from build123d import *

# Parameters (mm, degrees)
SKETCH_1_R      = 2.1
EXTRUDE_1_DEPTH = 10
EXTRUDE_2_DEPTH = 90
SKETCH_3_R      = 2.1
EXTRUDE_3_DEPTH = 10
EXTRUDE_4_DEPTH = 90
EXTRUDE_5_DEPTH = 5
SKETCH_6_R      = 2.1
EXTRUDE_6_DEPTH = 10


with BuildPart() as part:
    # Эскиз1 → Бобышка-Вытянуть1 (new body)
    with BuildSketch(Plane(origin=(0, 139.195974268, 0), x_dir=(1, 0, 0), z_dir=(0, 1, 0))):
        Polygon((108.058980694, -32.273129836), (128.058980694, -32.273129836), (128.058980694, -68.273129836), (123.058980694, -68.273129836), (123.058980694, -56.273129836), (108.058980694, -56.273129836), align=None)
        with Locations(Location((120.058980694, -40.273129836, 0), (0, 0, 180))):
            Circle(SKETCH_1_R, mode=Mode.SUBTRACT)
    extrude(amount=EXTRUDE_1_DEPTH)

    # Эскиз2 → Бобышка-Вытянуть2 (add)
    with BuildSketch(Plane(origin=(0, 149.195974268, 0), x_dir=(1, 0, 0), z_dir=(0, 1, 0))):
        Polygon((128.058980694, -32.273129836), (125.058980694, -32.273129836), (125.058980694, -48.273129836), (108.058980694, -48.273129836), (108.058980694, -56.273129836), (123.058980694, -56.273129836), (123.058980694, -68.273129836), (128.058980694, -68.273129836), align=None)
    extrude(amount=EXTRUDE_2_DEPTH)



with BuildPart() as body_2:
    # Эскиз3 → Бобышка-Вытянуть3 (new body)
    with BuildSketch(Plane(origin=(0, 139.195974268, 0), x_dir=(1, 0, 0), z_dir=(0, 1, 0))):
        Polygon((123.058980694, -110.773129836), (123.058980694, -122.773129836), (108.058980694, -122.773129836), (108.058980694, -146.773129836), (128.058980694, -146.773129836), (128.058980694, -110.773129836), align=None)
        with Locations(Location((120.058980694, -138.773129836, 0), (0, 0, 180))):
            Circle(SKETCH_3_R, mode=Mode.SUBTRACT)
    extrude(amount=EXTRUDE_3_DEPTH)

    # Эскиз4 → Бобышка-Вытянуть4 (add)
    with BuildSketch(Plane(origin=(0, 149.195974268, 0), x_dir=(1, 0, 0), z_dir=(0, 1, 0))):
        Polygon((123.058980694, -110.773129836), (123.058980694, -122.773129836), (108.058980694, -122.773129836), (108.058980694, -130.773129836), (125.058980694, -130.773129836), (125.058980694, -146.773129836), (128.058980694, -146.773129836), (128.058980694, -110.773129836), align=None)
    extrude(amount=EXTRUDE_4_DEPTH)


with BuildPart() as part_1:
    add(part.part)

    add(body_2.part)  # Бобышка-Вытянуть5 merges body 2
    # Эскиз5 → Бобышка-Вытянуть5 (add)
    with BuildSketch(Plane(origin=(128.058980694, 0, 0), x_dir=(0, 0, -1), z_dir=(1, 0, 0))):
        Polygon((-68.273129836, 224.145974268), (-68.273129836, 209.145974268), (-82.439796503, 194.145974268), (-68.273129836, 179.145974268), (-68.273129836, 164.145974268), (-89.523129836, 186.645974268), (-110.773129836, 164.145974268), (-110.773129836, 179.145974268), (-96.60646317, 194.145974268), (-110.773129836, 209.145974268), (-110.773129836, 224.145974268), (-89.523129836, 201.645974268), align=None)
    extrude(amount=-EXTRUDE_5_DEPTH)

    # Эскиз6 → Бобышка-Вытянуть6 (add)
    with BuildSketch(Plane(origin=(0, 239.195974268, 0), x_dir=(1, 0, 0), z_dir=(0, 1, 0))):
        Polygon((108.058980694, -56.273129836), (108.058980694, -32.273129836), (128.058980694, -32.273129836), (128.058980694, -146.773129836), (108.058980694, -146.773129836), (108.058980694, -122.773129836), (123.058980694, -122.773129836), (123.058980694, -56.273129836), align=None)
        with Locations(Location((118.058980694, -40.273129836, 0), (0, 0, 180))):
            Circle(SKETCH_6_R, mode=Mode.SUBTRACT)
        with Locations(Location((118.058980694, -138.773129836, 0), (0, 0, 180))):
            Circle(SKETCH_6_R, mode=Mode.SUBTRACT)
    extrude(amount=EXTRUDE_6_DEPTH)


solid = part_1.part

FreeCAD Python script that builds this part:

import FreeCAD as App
import Part
import Sketcher
from FreeCAD import Vector


def add_polygon(sketch, points):
    """Adds a closed chain of lines whose ends are joined by coincident constraints."""
    first, n = sketch.GeometryCount, len(points)
    for a, b in zip(points, points[1:] + points[:1]):
        sketch.addGeometry(Part.LineSegment(App.Vector(*a, 0), App.Vector(*b, 0)), False)
    for i in range(n):
        sketch.addConstraint(Sketcher.Constraint("Coincident", first + i, 2, first + (i + 1) % n, 1))

doc = App.newDocument("Part")
body = doc.addObject("PartDesign::Body", "Body")

sketch1 = body.newObject("Sketcher::SketchObject", "Sketch")
sketch1.AttachmentSupport = (doc.getObject("XZ_Plane"), [""])
sketch1.MapMode = "FlatFace"
sketch1.AttachmentOffset = App.Placement(Vector(0, 0, -139.195974), App.Rotation())
add_polygon(sketch1, [(128.058981, 32.27313), (108.058981, 32.27313), (108.058981, 56.27313), (123.058981, 56.27313), (123.058981, 68.27313), (128.058981, 68.27313)])
sketch1.addGeometry(Part.Circle(Vector(120.058981, 40.27313, 0), Vector(0, 0, 1), 2.1), False)
sketch1.addConstraint(Sketcher.Constraint("Horizontal", 0))
sketch1.addConstraint(Sketcher.Constraint("Vertical", 1))
sketch1.addConstraint(Sketcher.Constraint("Horizontal", 2))
sketch1.addConstraint(Sketcher.Constraint("Vertical", 3))
sketch1.addConstraint(Sketcher.Constraint("Horizontal", 4))
sketch1.addConstraint(Sketcher.Constraint("Vertical", 5))
sketch1.addConstraint(Sketcher.Constraint("Diameter", 6, 4.2))
sketch1.addConstraint(Sketcher.Constraint("DistanceX", 0, 2, 0, 1, 20.0))
sketch1.addConstraint(Sketcher.Constraint("DistanceX", 2, 1, 2, 2, 15.0))
sketch1.addConstraint(Sketcher.Constraint("DistanceY", 1, 1, 1, 2, 24.0))
sketch1.addConstraint(Sketcher.Constraint("DistanceY", 3, 1, 3, 2, 12.0))
sketch1.addConstraint(Sketcher.Constraint("DistanceX", 0, 2, 6, 3, 12.0))
sketch1.addConstraint(Sketcher.Constraint("DistanceY", 0, 2, 6, 3, 8.0))
sketch1.addConstraint(Sketcher.Constraint("DistanceX", -1, 1, 6, 3, 120.058981))
sketch1.addConstraint(Sketcher.Constraint("DistanceY", -1, 1, 6, 3, 40.27313))
pad1 = body.newObject("PartDesign::Pad", "Pad")
pad1.Profile = sketch1
pad1.Length = 10
pad1.Reversed = True

sketch2 = body.newObject("Sketcher::SketchObject", "Sketch001")
sketch2.AttachmentSupport = (doc.getObject("XZ_Plane"), [""])
sketch2.MapMode = "FlatFace"
sketch2.AttachmentOffset = App.Placement(Vector(0, 0, -149.195974), App.Rotation())
add_polygon(sketch2, [(128.058981, 32.27313), (125.058981, 32.27313), (125.058981, 48.27313), (108.058981, 48.27313), (108.058981, 56.27313), (123.058981, 56.27313), (123.058981, 68.27313), (128.058981, 68.27313)])
sketch2.addConstraint(Sketcher.Constraint("Horizontal", 0))
sketch2.addConstraint(Sketcher.Constraint("Vertical", 1))
sketch2.addConstraint(Sketcher.Constraint("Horizontal", 2))
sketch2.addConstraint(Sketcher.Constraint("Vertical", 3))
sketch2.addConstraint(Sketcher.Constraint("Horizontal", 4))
sketch2.addConstraint(Sketcher.Constraint("Vertical", 5))
sketch2.addConstraint(Sketcher.Constraint("Horizontal", 6))
sketch2.addConstraint(Sketcher.Constraint("Vertical", 7))
sketch2.addConstraint(Sketcher.Constraint("DistanceX", 0, 2, 0, 1, 3.0))
sketch2.addConstraint(Sketcher.Constraint("DistanceX", 2, 2, 2, 1, 17.0))
sketch2.addConstraint(Sketcher.Constraint("DistanceX", 4, 1, 4, 2, 15.0))
sketch2.addConstraint(Sketcher.Constraint("DistanceY", 1, 1, 1, 2, 16.0))
sketch2.addConstraint(Sketcher.Constraint("DistanceY", 3, 1, 3, 2, 8.0))
sketch2.addConstraint(Sketcher.Constraint("DistanceY", 5, 1, 5, 2, 12.0))
sketch2.addConstraint(Sketcher.Constraint("DistanceX", -1, 1, 0, 2, 125.058981))
sketch2.addConstraint(Sketcher.Constraint("DistanceY", -1, 1, 0, 2, 32.27313))
pad2 = body.newObject("PartDesign::Pad", "Pad001")
pad2.Profile = sketch2
pad2.Length = 90
pad2.Reversed = True
body2 = doc.addObject("PartDesign::Body", "Body001")

sketch3 = body2.newObject("Sketcher::SketchObject", "Sketch002")
sketch3.AttachmentSupport = (doc.getObject("XZ_Plane001"), [""])
sketch3.MapMode = "FlatFace"
sketch3.AttachmentOffset = App.Placement(Vector(0, 0, -139.195974), App.Rotation())
add_polygon(sketch3, [(123.058981, 110.77313), (123.058981, 122.77313), (108.058981, 122.77313), (108.058981, 146.77313), (128.058981, 146.77313), (128.058981, 110.77313)])
sketch3.addGeometry(Part.Circle(Vector(120.058981, 138.77313, 0), Vector(0, 0, 1), 2.1), False)
sketch3.addConstraint(Sketcher.Constraint("Vertical", 0))
sketch3.addConstraint(Sketcher.Constraint("Horizontal", 1))
sketch3.addConstraint(Sketcher.Constraint("Vertical", 2))
sketch3.addConstraint(Sketcher.Constraint("Horizontal", 3))
sketch3.addConstraint(Sketcher.Constraint("Vertical", 4))
sketch3.addConstraint(Sketcher.Constraint("Horizontal", 5))
sketch3.addConstraint(Sketcher.Constraint("Diameter", 6, 4.2))
sketch3.addConstraint(Sketcher.Constraint("DistanceX", 1, 2, 1, 1, 15.0))
sketch3.addConstraint(Sketcher.Constraint("DistanceX", 3, 1, 3, 2, 20.0))
sketch3.addConstraint(Sketcher.Constraint("DistanceY", 0, 1, 0, 2, 12.0))
sketch3.addConstraint(Sketcher.Constraint("DistanceY", 2, 1, 2, 2, 24.0))
sketch3.addConstraint(Sketcher.Constraint("DistanceX", 6, 3, 0, 2, 3.0))
sketch3.addConstraint(Sketcher.Constraint("DistanceY", 0, 2, 6, 3, 16.0))
sketch3.addConstraint(Sketcher.Constraint("DistanceX", -1, 1, 6, 3, 120.058981))
sketch3.addConstraint(Sketcher.Constraint("DistanceY", -1, 1, 6, 3, 138.77313))
pad3 = body2.newObject("PartDesign::Pad", "Pad002")
pad3.Profile = sketch3
pad3.Length = 10
pad3.Reversed = True

sketch4 = body2.newObject("Sketcher::SketchObject", "Sketch003")
sketch4.AttachmentSupport = (doc.getObject("XZ_Plane001"), [""])
sketch4.MapMode = "FlatFace"
sketch4.AttachmentOffset = App.Placement(Vector(0, 0, -149.195974), App.Rotation())
add_polygon(sketch4, [(123.058981, 110.77313), (123.058981, 122.77313), (108.058981, 122.77313), (108.058981, 130.77313), (125.058981, 130.77313), (125.058981, 146.77313), (128.058981, 146.77313), (128.058981, 110.77313)])
sketch4.addConstraint(Sketcher.Constraint("Vertical", 0))
sketch4.addConstraint(Sketcher.Constraint("Horizontal", 1))
sketch4.addConstraint(Sketcher.Constraint("Vertical", 2))
sketch4.addConstraint(Sketcher.Constraint("Horizontal", 3))
sketch4.addConstraint(Sketcher.Constraint("Vertical", 4))
sketch4.addConstraint(Sketcher.Constraint("Horizontal", 5))
sketch4.addConstraint(Sketcher.Constraint("Vertical", 6))
sketch4.addConstraint(Sketcher.Constraint("Horizontal", 7))
sketch4.addConstraint(Sketcher.Constraint("DistanceX", 1, 2, 1, 1, 15.0))
sketch4.addConstraint(Sketcher.Constraint("DistanceX", 3, 1, 3, 2, 17.0))
sketch4.addConstraint(Sketcher.Constraint("DistanceX", 5, 1, 5, 2, 3.0))
sketch4.addConstraint(Sketcher.Constraint("DistanceY", 0, 1, 0, 2, 12.0))
sketch4.addConstraint(Sketcher.Constraint("DistanceY", 2, 1, 2, 2, 8.0))
sketch4.addConstraint(Sketcher.Constraint("DistanceY", 4, 1, 4, 2, 16.0))
sketch4.addConstraint(Sketcher.Constraint("DistanceX", -1, 1, 0, 2, 123.058981))
sketch4.addConstraint(Sketcher.Constraint("DistanceY", -1, 1, 0, 2, 122.77313))
pad4 = body2.newObject("PartDesign::Pad", "Pad003")
pad4.Profile = sketch4
pad4.Length = 90
pad4.Reversed = True
body.AllowCompound = True
doc.recompute()

boolean = body.newObject("PartDesign::Boolean", "Boolean")
boolean.Type = "Fuse"
boolean.addObjects([body2])

sketch5 = body.newObject("Sketcher::SketchObject", "Sketch004")
sketch5.AttachmentSupport = (doc.getObject("YZ_Plane"), [""])
sketch5.MapMode = "FlatFace"
sketch5.AttachmentOffset = App.Placement(Vector(0, 0, 128.058981), App.Rotation())
add_polygon(sketch5, [(209.145974, 68.27313), (224.145974, 68.27313), (201.645974, 89.52313), (224.145974, 110.77313), (209.145974, 110.77313), (194.145974, 96.606463), (179.145974, 110.77313), (164.145974, 110.77313), (186.645974, 89.52313), (164.145974, 68.27313), (179.145974, 68.27313), (194.145974, 82.439797)])
sketch5.addConstraint(Sketcher.Constraint("Horizontal", 0))
sketch5.addConstraint(Sketcher.Constraint("Horizontal", 3))
sketch5.addConstraint(Sketcher.Constraint("Horizontal", 6))
sketch5.addConstraint(Sketcher.Constraint("Horizontal", 9))
sketch5.addConstraint(Sketcher.Constraint("Parallel", 2, 4))
sketch5.addConstraint(Sketcher.Constraint("Parallel", 1, 5))
sketch5.addConstraint(Sketcher.Constraint("Parallel", 5, 7))
sketch5.addConstraint(Sketcher.Constraint("Parallel", 4, 8))
sketch5.addConstraint(Sketcher.Constraint("Parallel", 8, 10))
sketch5.addConstraint(Sketcher.Constraint("Parallel", 7, 11))
sketch5.addConstraint(Sketcher.Constraint("Horizontal", 3, 2, 5, 2))
sketch5.addConstraint(Sketcher.Constraint("Horizontal", 1, 2, 7, 2))
sketch5.addConstraint(Sketcher.Constraint("Horizontal", 0, 2, 8, 2))
sketch5.addConstraint(Sketcher.Constraint("Vertical", 0, 2, 2, 2))
sketch5.addConstraint(Sketcher.Constraint("Vertical", 6, 2, 8, 2))
sketch5.addConstraint(Sketcher.Constraint("Vertical", 5, 2, 9, 2))
sketch5.addConstraint(Sketcher.Constraint("Vertical", 4, 2, 10, 2))
sketch5.addConstraint(Sketcher.Constraint("Equal", 3, 6))
sketch5.addConstraint(Sketcher.Constraint("DistanceX", 0, 1, 0, 2, 15.0))
sketch5.addConstraint(Sketcher.Constraint("DistanceX", 4, 2, 3, 2, 15.0))
sketch5.addConstraint(Sketcher.Constraint("DistanceX", 7, 2, 1, 2, 15.0))
sketch5.addConstraint(Sketcher.Constraint("DistanceY", 0, 2, 2, 2, 42.5))
sketch5.addConstraint(Sketcher.Constraint("DistanceY", -1, 1, 0, 2, 68.27313))
sketch5.addConstraint(Sketcher.Constraint("DistanceX", -1, 1, 0, 2, 224.145974))
pad5 = body.newObject("PartDesign::Pad", "Pad004")
pad5.Profile = sketch5
pad5.Length = 5
pad5.Reversed = True

sketch6 = body.newObject("Sketcher::SketchObject", "Sketch005")
sketch6.AttachmentSupport = (doc.getObject("XZ_Plane"), [""])
sketch6.MapMode = "FlatFace"
sketch6.AttachmentOffset = App.Placement(Vector(0, 0, -239.195974), App.Rotation())
add_polygon(sketch6, [(108.058981, 32.27313), (108.058981, 56.27313), (123.058981, 56.27313), (123.058981, 122.77313), (108.058981, 122.77313), (108.058981, 146.77313), (128.058981, 146.77313), (128.058981, 32.27313)])
sketch6.addGeometry(Part.Circle(Vector(118.058981, 138.77313, 0), Vector(0, 0, 1), 2.1), False)
sketch6.addGeometry(Part.Circle(Vector(118.058981, 40.27313, 0), Vector(0, 0, 1), 2.1), False)
sketch6.addConstraint(Sketcher.Constraint("Vertical", 0))
sketch6.addConstraint(Sketcher.Constraint("Horizontal", 1))
sketch6.addConstraint(Sketcher.Constraint("Vertical", 2))
sketch6.addConstraint(Sketcher.Constraint("Horizontal", 3))
sketch6.addConstraint(Sketcher.Constraint("Vertical", 4))
sketch6.addConstraint(Sketcher.Constraint("Horizontal", 5))
sketch6.addConstraint(Sketcher.Constraint("Vertical", 6))
sketch6.addConstraint(Sketcher.Constraint("Horizontal", 7))
sketch6.addConstraint(Sketcher.Constraint("Equal", 8, 9))
sketch6.addConstraint(Sketcher.Constraint("Vertical", 8, 3, 9, 3))
sketch6.addConstraint(Sketcher.Constraint("Vertical", 0, 2, 3, 2))
sketch6.addConstraint(Sketcher.Constraint("Equal", 0, 4))
sketch6.addConstraint(Sketcher.Constraint("Diameter", 8, 4.2))
sketch6.addConstraint(Sketcher.Constraint("DistanceX", 1, 1, 1, 2, 15.0))
sketch6.addConstraint(Sketcher.Constraint("DistanceX", 5, 1, 5, 2, 20.0))
sketch6.addConstraint(Sketcher.Constraint("DistanceY", 0, 1, 0, 2, 24.0))
sketch6.addConstraint(Sketcher.Constraint("DistanceY", 2, 1, 2, 2, 66.5))
sketch6.addConstraint(Sketcher.Constraint("DistanceX", 0, 2, 9, 3, 10.0))
sketch6.addConstraint(Sketcher.Constraint("DistanceY", 9, 3, 0, 2, 16.0))
sketch6.addConstraint(Sketcher.Constraint("DistanceY", 2, 2, 8, 3, 16.0))
sketch6.addConstraint(Sketcher.Constraint("DistanceX", -1, 1, 8, 3, 118.058981))
sketch6.addConstraint(Sketcher.Constraint("DistanceY", -1, 1, 8, 3, 138.77313))
pad6 = body.newObject("PartDesign::Pad", "Pad005")
pad6.Profile = sketch6
pad6.Length = 10
pad6.Reversed = True

doc.recompute()
